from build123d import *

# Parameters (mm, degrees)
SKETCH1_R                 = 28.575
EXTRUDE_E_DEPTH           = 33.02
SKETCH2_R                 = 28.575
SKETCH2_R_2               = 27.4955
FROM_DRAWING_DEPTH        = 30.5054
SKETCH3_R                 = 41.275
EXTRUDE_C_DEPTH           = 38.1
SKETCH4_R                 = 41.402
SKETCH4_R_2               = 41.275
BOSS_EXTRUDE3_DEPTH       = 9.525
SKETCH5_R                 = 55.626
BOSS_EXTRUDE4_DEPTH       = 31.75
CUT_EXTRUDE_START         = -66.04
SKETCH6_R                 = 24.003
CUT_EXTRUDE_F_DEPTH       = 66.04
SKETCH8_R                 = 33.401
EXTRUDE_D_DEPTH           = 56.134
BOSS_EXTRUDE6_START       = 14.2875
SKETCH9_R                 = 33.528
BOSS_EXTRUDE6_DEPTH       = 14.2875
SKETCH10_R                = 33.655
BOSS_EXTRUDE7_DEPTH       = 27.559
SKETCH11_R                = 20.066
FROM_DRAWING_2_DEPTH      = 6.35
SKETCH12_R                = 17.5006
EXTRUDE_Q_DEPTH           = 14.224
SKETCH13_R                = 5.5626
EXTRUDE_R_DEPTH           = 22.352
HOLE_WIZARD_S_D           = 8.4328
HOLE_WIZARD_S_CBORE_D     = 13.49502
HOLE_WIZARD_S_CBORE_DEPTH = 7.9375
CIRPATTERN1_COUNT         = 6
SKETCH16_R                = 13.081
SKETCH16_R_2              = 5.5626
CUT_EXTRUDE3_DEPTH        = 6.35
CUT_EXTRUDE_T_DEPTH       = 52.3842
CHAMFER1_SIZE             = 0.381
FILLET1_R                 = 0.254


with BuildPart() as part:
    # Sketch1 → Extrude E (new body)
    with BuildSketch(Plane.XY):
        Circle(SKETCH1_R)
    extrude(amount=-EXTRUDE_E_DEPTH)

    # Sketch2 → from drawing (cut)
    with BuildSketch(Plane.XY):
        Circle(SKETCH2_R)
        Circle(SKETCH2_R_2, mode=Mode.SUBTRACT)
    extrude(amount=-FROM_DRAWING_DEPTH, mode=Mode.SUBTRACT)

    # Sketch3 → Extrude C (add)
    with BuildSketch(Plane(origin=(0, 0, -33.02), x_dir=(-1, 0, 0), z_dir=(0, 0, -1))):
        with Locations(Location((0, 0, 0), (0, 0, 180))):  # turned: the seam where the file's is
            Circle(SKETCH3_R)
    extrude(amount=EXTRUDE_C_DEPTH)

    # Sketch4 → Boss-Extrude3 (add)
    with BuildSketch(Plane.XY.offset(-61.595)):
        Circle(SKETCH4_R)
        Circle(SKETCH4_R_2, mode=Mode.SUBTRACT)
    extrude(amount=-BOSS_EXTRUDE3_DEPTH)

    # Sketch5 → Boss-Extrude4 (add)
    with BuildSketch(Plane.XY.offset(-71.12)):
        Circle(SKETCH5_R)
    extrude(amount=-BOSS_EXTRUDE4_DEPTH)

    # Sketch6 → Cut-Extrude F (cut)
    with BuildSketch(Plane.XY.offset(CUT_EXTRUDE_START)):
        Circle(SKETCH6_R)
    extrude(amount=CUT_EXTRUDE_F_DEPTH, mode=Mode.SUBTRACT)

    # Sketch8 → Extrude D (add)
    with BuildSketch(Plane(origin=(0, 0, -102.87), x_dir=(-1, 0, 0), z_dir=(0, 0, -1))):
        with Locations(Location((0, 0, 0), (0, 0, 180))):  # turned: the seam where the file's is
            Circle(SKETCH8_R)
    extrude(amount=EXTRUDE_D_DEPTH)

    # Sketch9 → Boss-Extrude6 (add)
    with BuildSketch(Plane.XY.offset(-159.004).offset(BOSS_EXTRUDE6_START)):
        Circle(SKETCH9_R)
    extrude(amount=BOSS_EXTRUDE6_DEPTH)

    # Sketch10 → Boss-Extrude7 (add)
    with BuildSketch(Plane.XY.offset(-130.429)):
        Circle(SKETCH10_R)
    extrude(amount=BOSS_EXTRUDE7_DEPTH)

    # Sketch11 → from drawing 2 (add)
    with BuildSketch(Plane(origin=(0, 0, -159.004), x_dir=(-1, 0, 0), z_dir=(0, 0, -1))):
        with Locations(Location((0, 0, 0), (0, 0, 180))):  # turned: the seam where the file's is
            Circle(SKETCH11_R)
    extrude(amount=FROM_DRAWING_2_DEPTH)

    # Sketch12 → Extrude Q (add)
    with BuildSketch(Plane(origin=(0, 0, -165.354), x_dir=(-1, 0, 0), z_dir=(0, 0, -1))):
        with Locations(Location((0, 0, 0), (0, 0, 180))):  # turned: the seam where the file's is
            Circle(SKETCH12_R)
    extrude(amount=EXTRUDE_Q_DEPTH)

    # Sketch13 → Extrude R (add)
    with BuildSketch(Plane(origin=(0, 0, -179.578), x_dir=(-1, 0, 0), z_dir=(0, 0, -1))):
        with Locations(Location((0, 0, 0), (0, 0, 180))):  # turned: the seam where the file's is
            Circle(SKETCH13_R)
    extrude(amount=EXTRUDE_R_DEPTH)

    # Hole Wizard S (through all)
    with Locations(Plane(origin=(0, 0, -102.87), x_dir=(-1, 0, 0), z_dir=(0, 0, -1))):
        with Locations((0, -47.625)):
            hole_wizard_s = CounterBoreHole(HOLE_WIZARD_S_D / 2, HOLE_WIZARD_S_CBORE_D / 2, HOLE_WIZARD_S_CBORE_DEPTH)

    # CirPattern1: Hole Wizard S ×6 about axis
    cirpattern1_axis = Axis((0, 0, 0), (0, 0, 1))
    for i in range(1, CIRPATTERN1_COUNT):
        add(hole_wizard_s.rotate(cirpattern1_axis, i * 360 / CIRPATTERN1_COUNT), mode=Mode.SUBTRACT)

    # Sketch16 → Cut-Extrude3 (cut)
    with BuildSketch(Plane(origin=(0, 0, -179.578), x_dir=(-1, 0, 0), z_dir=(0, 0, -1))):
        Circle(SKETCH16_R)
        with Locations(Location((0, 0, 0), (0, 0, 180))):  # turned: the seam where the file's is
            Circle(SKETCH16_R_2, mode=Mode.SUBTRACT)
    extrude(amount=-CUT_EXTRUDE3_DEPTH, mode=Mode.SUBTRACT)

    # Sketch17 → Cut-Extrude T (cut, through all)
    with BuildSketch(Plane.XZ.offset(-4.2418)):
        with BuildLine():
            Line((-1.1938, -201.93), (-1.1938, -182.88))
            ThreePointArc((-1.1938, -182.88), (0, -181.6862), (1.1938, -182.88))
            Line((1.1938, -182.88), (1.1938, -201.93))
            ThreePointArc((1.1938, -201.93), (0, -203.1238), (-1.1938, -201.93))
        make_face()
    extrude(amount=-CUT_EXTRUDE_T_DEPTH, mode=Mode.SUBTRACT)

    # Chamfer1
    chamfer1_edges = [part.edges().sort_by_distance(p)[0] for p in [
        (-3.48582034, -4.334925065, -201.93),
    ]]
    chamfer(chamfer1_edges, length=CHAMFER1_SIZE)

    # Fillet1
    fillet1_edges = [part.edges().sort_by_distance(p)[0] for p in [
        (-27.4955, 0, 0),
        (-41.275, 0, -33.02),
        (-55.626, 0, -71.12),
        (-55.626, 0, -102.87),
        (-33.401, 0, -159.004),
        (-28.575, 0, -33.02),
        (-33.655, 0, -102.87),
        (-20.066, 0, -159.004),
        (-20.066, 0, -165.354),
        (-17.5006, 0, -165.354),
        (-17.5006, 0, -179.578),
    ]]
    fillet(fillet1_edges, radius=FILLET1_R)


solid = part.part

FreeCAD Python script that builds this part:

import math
import FreeCAD as App
import Part
import Sketcher
Q = App.Units.Quantity


def edges_at(feature, points):
    """Names of the edges that pass closest to the given points."""
    edges = feature.Shape.Edges
    near = lambda p: min(range(len(edges)), key=lambda i: edges[i].distToShape(Part.Vertex(*p))[0])
    return sorted({f"Edge{near(p) + 1}" for p in points})

doc = App.newDocument("Part")
body = doc.addObject("PartDesign::Body", "Body")

# Sketch on XY plane
sketch1 = doc.addObject("Sketcher::SketchObject", "Sketch")
body.addObject(sketch1)
sketch1.AttachmentSupport = (doc.XY_Plane, [""])
sketch1.MapMode = "FlatFace"
sketch1.addGeometry(Part.Circle(App.Vector(0, 0, 0), App.Vector(0, 0, 1), 29), False)
sketch1.addConstraint([
    Sketcher.Constraint("Coincident", 0, 3, -1, 1),
    Sketcher.Constraint("Diameter", 0, Q("2.25 in")),
])
pad1 = doc.addObject("PartDesign::Pad", "Pad")
body.addObject(pad1)
pad1.Profile = sketch1
pad1.Length = Q("1.3 in")
pad1.Reversed = True

# Sketch on XY plane
sketch2 = doc.addObject("Sketcher::SketchObject", "Sketch001")
body.addObject(sketch2)
sketch2.AttachmentSupport = (doc.XY_Plane, [""])
sketch2.MapMode = "FlatFace"
sketch2.addGeometry([
    Part.Circle(App.Vector(0, 0, 0), App.Vector(0, 0, 1), 29),
    Part.Circle(App.Vector(0, 0, 0), App.Vector(0, 0, 1), 27),
], False)
sketch2.addConstraint([
    Sketcher.Constraint("Coincident", 0, 3, -1, 1),
    Sketcher.Constraint("Coincident", 1, 3, -1, 1),
    Sketcher.Constraint("Diameter", 0, Q("2.25 in")),
    Sketcher.Constraint("Diameter", 1, Q("2.165 in")),
])
pocket1 = doc.addObject("PartDesign::Pocket", "Pocket")
body.addObject(pocket1)
pocket1.Profile = sketch2
pocket1.Length = Q("1.201 in")

# Sketch on XY plane
sketch3 = doc.addObject("Sketcher::SketchObject", "Sketch002")
body.addObject(sketch3)
sketch3.AttachmentSupport = (doc.XY_Plane, [""])
sketch3.MapMode = "FlatFace"
sketch3.AttachmentOffset = App.Placement(App.Vector(0, 0, -1.3 * 25.4), App.Rotation())
sketch3.addGeometry(Part.Circle(App.Vector(0, 0, 0), App.Vector(0, 0, 1), 41), False)
sketch3.addConstraint([
    Sketcher.Constraint("Coincident", 0, 3, -1, 1),
    Sketcher.Constraint("Diameter", 0, Q("3.25 in")),
])
pad2 = doc.addObject("PartDesign::Pad", "Pad001")
body.addObject(pad2)
pad2.Profile = sketch3
pad2.Length = Q("1.5 in")
pad2.Reversed = True

# Sketch on XY plane
sketch4 = doc.addObject("Sketcher::SketchObject", "Sketch003")
body.addObject(sketch4)
sketch4.AttachmentSupport = (doc.XY_Plane, [""])
sketch4.MapMode = "FlatFace"
sketch4.AttachmentOffset = App.Placement(App.Vector(0, 0, -2.425 * 25.4), App.Rotation())
sketch4.addGeometry([
    Part.Circle(App.Vector(0, 0, 0), App.Vector(0, 0, 1), 41),
    Part.Circle(App.Vector(0, 0, 0), App.Vector(0, 0, 1), 41),
], False)
sketch4.addConstraint([
    Sketcher.Constraint("Coincident", 0, 3, -1, 1),
    Sketcher.Constraint("Coincident", 1, 3, -1, 1),
    Sketcher.Constraint("Diameter", 0, Q("3.26 in")),
    Sketcher.Constraint("Diameter", 1, Q("3.25 in")),
])
pad3 = doc.addObject("PartDesign::Pad", "Pad002")
body.addObject(pad3)
pad3.Profile = sketch4
pad3.Length = Q("0.375 in")
pad3.Reversed = True

# Sketch on XY plane
sketch5 = doc.addObject("Sketcher::SketchObject", "Sketch004")
body.addObject(sketch5)
sketch5.AttachmentSupport = (doc.XY_Plane, [""])
sketch5.MapMode = "FlatFace"
sketch5.AttachmentOffset = App.Placement(App.Vector(0, 0, -2.8 * 25.4), App.Rotation())
sketch5.addGeometry(Part.Circle(App.Vector(0, 0, 0), App.Vector(0, 0, 1), 56), False)
sketch5.addConstraint([
    Sketcher.Constraint("Coincident", 0, 3, -1, 1),
    Sketcher.Constraint("Diameter", 0, Q("4.38 in")),
])
pad4 = doc.addObject("PartDesign::Pad", "Pad003")
body.addObject(pad4)
pad4.Profile = sketch5
pad4.Length = Q("1.25 in")
pad4.Reversed = True

# Sketch on XY plane
sketch6 = doc.addObject("Sketcher::SketchObject", "Sketch005")
body.addObject(sketch6)
sketch6.AttachmentSupport = (doc.XY_Plane, [""])
sketch6.MapMode = "FlatFace"
sketch6.AttachmentOffset = App.Placement(App.Vector(0, 0, -2.6 * 25.4), App.Rotation())
sketch6.addGeometry(Part.Circle(App.Vector(0, 0, 0), App.Vector(0, 0, 1), 24), False)
sketch6.addConstraint([
    Sketcher.Constraint("Coincident", 0, 3, -1, 1),
    Sketcher.Constraint("Diameter", 0, Q("1.89 in")),
])
pocket2 = doc.addObject("PartDesign::Pocket", "Pocket001")
body.addObject(pocket2)
pocket2.Profile = sketch6
pocket2.Length = Q("2.6 in")
pocket2.Reversed = True

# Sketch on XY plane
sketch7 = doc.addObject("Sketcher::SketchObject", "Sketch006")
body.addObject(sketch7)
sketch7.AttachmentSupport = (doc.XY_Plane, [""])
sketch7.MapMode = "FlatFace"
sketch7.AttachmentOffset = App.Placement(App.Vector(0, 0, -4.05 * 25.4), App.Rotation())
sketch7.addGeometry(Part.Circle(App.Vector(0, 0, 0), App.Vector(0, 0, 1), 33), False)
sketch7.addConstraint([
    Sketcher.Constraint("Coincident", 0, 3, -1, 1),
    Sketcher.Constraint("Diameter", 0, Q("2.63 in")),
])
pad5 = doc.addObject("PartDesign::Pad", "Pad004")
body.addObject(pad5)
pad5.Profile = sketch7
pad5.Length = Q("2.21 in")
pad5.Reversed = True

# Sketch on XY plane
sketch8 = doc.addObject("Sketcher::SketchObject", "Sketch007")
body.addObject(sketch8)
sketch8.AttachmentSupport = (doc.XY_Plane, [""])
sketch8.MapMode = "FlatFace"
sketch8.AttachmentOffset = App.Placement(App.Vector(0, 0, -5.6975 * 25.4), App.Rotation())
sketch8.addGeometry(Part.Circle(App.Vector(0, 0, 0), App.Vector(0, 0, 1), 34), False)
sketch8.addConstraint([
    Sketcher.Constraint("Coincident", 0, 3, -1, 1),
    Sketcher.Constraint("Diameter", 0, Q("2.64 in")),
])
pad6 = doc.addObject("PartDesign::Pad", "Pad005")
body.addObject(pad6)
pad6.Profile = sketch8
pad6.Length = Q("0.5625 in")

# Sketch on XY plane
sketch9 = doc.addObject("Sketcher::SketchObject", "Sketch008")
body.addObject(sketch9)
sketch9.AttachmentSupport = (doc.XY_Plane, [""])
sketch9.MapMode = "FlatFace"
sketch9.AttachmentOffset = App.Placement(App.Vector(0, 0, -5.135 * 25.4), App.Rotation())
sketch9.addGeometry(Part.Circle(App.Vector(0, 0, 0), App.Vector(0, 0, 1), 34), False)
sketch9.addConstraint([
    Sketcher.Constraint("Coincident", 0, 3, -1, 1),
    Sketcher.Constraint("Diameter", 0, Q("2.65 in")),
])
pad7 = doc.addObject("PartDesign::Pad", "Pad006")
body.addObject(pad7)
pad7.Profile = sketch9
pad7.Length = Q("1.085 in")

# Sketch on XY plane
sketch10 = doc.addObject("Sketcher::SketchObject", "Sketch009")
body.addObject(sketch10)
sketch10.AttachmentSupport = (doc.XY_Plane, [""])
sketch10.MapMode = "FlatFace"
sketch10.AttachmentOffset = App.Placement(App.Vector(0, 0, -6.26 * 25.4), App.Rotation())
sketch10.addGeometry(Part.Circle(App.Vector(0, 0, 0), App.Vector(0, 0, 1), 20), False)
sketch10.addConstraint([
    Sketcher.Constraint("Coincident", 0, 3, -1, 1),
    Sketcher.Constraint("Diameter", 0, Q("1.58 in")),
])
pad8 = doc.addObject("PartDesign::Pad", "Pad007")
body.addObject(pad8)
pad8.Profile = sketch10
pad8.Length = Q("0.25 in")
pad8.Reversed = True

# Sketch on XY plane
sketch11 = doc.addObject("Sketcher::SketchObject", "Sketch010")
body.addObject(sketch11)
sketch11.AttachmentSupport = (doc.XY_Plane, [""])
sketch11.MapMode = "FlatFace"
sketch11.AttachmentOffset = App.Placement(App.Vector(0, 0, -6.51 * 25.4), App.Rotation())
sketch11.addGeometry(Part.Circle(App.Vector(0, 0, 0), App.Vector(0, 0, 1), 18), False)
sketch11.addConstraint([
    Sketcher.Constraint("Coincident", 0, 3, -1, 1),
    Sketcher.Constraint("Diameter", 0, Q("1.378 in")),
])
pad9 = doc.addObject("PartDesign::Pad", "Pad008")
body.addObject(pad9)
pad9.Profile = sketch11
pad9.Length = Q("0.56 in")
pad9.Reversed = True

# Sketch on XY plane
sketch12 = doc.addObject("Sketcher::SketchObject", "Sketch011")
body.addObject(sketch12)
sketch12.AttachmentSupport = (doc.XY_Plane, [""])
sketch12.MapMode = "FlatFace"
sketch12.AttachmentOffset = App.Placement(App.Vector(0, 0, -7.07 * 25.4), App.Rotation())
sketch12.addGeometry(Part.Circle(App.Vector(0, 0, 0), App.Vector(0, 0, 1), 6), False)
sketch12.addConstraint([
    Sketcher.Constraint("Coincident", 0, 3, -1, 1),
    Sketcher.Constraint("Diameter", 0, Q("0.438 in")),
])
pad10 = doc.addObject("PartDesign::Pad", "Pad009")
body.addObject(pad10)
pad10.Profile = sketch12
pad10.Length = Q("0.88 in")
pad10.Reversed = True

# Sketch on XY plane
sketch13 = doc.addObject("Sketcher::SketchObject", "Sketch012")
body.addObject(sketch13)
sketch13.AttachmentSupport = (doc.XY_Plane, [""])
sketch13.MapMode = "FlatFace"
sketch13.AttachmentOffset = App.Placement(App.Vector(0, 0, -4.05 * 25.4), App.Rotation())
sketch13.addGeometry(Part.Circle(App.Vector(0, -47.6, 0), App.Vector(0, 0, 1), 4.2), False)
sketch13.addConstraint([
    Sketcher.Constraint("PointOnObject", 0, 3, -2),
    Sketcher.Constraint("Diameter", 0, Q("0.332 in")),
    Sketcher.Constraint("DistanceY", 0, 3, -1, 1, Q("1.875 in")),
])
doc.recompute()
hole = doc.addObject("PartDesign::Hole", "Hole")
body.addObject(hole)
hole.Profile = sketch13
hole.ThreadType = "None"
hole.Diameter = Q("0.332 in")
hole.DepthType = "ThroughAll"
hole.HoleCutType = "Counterbore"
hole.HoleCutDiameter = Q("0.5313 in")
hole.HoleCutDepth = Q("0.3125 in")
hole.Reversed = True
doc.recompute()

polarpattern = doc.addObject("PartDesign::PolarPattern", "PolarPattern")
body.addObject(polarpattern)
polarpattern.Originals = [hole]
polarpattern.Axis = (doc.Z_Axis, [""])
polarpattern.Angle = 360
polarpattern.Occurrences = 6
body.Tip = polarpattern

# Sketch on XY plane
sketch14 = doc.addObject("Sketcher::SketchObject", "Sketch013")
body.addObject(sketch14)
sketch14.AttachmentSupport = (doc.XY_Plane, [""])
sketch14.MapMode = "FlatFace"
sketch14.AttachmentOffset = App.Placement(App.Vector(0, 0, -7.07 * 25.4), App.Rotation())
sketch14.addGeometry([
    Part.Circle(App.Vector(0, 0, 0), App.Vector(0, 0, 1), 13),
    Part.Circle(App.Vector(0, 0, 0), App.Vector(0, 0, 1), 6),
], False)
sketch14.addConstraint([
    Sketcher.Constraint("Coincident", 0, 3, -1, 1),
    Sketcher.Constraint("Coincident", 1, 3, -1, 1),
    Sketcher.Constraint("Diameter", 0, Q("1.03 in")),
    Sketcher.Constraint("Diameter", 1, Q("0.438 in")),
])
pocket3 = doc.addObject("PartDesign::Pocket", "Pocket002")
body.addObject(pocket3)
pocket3.Profile = sketch14
pocket3.Length = Q("0.25 in")
pocket3.Reversed = True

# Sketch on XZ plane
sketch15 = doc.addObject("Sketcher::SketchObject", "Sketch014")
body.addObject(sketch15)
sketch15.AttachmentSupport = (doc.XZ_Plane, [""])
sketch15.MapMode = "FlatFace"
sketch15.AttachmentOffset = App.Placement(App.Vector(0, 0, -0.167 * 25.4), App.Rotation())
sketch15.addGeometry([
    Part.LineSegment(App.Vector(-1.2, -182.9, 0), App.Vector(-1.2, -201.9, 0)),
    Part.ArcOfCircle(Part.Circle(App.Vector(0, -201.9, 0), App.Vector(0, 0, 1), 1.2), math.radians(180), math.radians(360)),
    Part.LineSegment(App.Vector(1.2, -201.9, 0), App.Vector(1.2, -182.9, 0)),
    Part.ArcOfCircle(Part.Circle(App.Vector(0, -182.9, 0), App.Vector(0, 0, 1), 1.2), math.radians(0), math.radians(180)),
], False)
sketch15.addConstraint([
    Sketcher.Constraint("Tangent", 0, 2, 1, 1),
    Sketcher.Constraint("Tangent", 1, 2, 2, 1),
    Sketcher.Constraint("Tangent", 2, 2, 3, 1),
    Sketcher.Constraint("Tangent", 3, 2, 0, 1),
    Sketcher.Constraint("Vertical", 0),
    Sketcher.Constraint("Vertical", 2),
    Sketcher.Constraint("PointOnObject", 1, 3, -2),
    Sketcher.Constraint("Radius", 1, Q("0.047 in")),
    Sketcher.Constraint("DistanceY", 0, 2, 0, 1, Q("0.75 in")),
    Sketcher.Constraint("DistanceY", 3, 3, -1, 1, Q("7.2 in")),
])
pocket4 = doc.addObject("PartDesign::Pocket", "Pocket003")
body.addObject(pocket4)
pocket4.Profile = sketch15
pocket4.Type = "ThroughAll"
doc.recompute()

chamfer = doc.addObject("PartDesign::Chamfer", "Chamfer")
body.addObject(chamfer)
chamfer.Base = (pocket4, edges_at(pocket4, [(-3.486, -4.335, -201.93)]))
chamfer.Size = Q("0.015 in")
doc.recompute()

fillet = doc.addObject("PartDesign::Fillet", "Fillet")
body.addObject(fillet)
fillet.Base = (chamfer, edges_at(chamfer, [
    (-27.495, 0, 0),
    (-41.275, 0, -33.02),
    (-55.626, 0, -71.12),
    (-55.626, 0, -102.87),
    (-33.401, 0, -159.004),
    (-28.575, 0, -33.02),
    (-33.655, 0, -102.87),
    (-20.066, 0, -159.004),
    (-20.066, 0, -165.354),
    (-17.501, 0, -165.354),
    (-17.501, 0, -179.578),
]))
fillet.Radius = Q("0.01 in")

doc.recompute()
